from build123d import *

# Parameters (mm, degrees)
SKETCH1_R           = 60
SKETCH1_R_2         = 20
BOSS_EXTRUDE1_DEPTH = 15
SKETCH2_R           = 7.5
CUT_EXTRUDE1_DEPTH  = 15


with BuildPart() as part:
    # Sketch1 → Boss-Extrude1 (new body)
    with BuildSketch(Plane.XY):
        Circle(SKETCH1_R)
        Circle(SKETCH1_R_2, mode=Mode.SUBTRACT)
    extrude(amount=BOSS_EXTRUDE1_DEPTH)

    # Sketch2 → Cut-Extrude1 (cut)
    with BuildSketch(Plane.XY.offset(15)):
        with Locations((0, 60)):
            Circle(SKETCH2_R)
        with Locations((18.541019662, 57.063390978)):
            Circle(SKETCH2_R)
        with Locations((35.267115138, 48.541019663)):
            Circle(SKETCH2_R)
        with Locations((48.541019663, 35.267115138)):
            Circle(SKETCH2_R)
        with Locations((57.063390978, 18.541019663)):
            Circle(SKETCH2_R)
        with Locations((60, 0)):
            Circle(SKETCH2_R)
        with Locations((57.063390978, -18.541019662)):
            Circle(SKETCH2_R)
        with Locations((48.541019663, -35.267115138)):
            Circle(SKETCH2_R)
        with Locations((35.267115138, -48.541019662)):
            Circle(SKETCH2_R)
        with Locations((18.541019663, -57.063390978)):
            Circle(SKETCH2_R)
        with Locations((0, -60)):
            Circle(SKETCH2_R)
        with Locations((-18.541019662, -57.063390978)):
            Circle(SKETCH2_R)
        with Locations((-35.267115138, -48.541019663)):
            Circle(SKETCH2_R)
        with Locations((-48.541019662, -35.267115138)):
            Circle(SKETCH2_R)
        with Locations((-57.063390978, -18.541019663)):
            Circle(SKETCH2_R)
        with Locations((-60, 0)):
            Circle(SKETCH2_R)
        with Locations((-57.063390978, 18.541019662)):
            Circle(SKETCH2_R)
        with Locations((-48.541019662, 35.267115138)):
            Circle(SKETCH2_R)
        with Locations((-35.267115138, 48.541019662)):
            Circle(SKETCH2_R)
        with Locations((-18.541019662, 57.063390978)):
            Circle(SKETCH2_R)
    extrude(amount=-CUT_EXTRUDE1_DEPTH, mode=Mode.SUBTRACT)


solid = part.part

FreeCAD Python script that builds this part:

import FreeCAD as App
import Part
import Sketcher
from FreeCAD import Vector

doc = App.newDocument("Part")
params = doc.addObject("Spreadsheet::Sheet", "Params")
for row, (alias, value) in enumerate([
    ("sketch1_diameter", "120 mm"),
    ("sketch1_diameter2", "40 mm"),
    ("pad1_length", "15 mm"),
    ("sketch2_diameter", "15 mm"),
    ("pocket1_length", "15 mm"),
], start=1):
    params.set(f"A{row}", alias)
    params.set(f"B{row}", "=" + value)
    params.setAlias(f"B{row}", alias)

body = doc.addObject("PartDesign::Body", "Body")

sketch1 = body.newObject("Sketcher::SketchObject", "Sketch")
sketch1.AttachmentSupport = (doc.getObject("XY_Plane"), [""])
sketch1.MapMode = "FlatFace"
sketch1.addGeometry(Part.Circle(Vector(0, 0, 0), Vector(0, 0, 1), 60), False)
sketch1.addGeometry(Part.Circle(Vector(0, 0, 0), Vector(0, 0, 1), 20), False)
sketch1.addConstraint(Sketcher.Constraint("Coincident", 0, 3, -1, 1))
sketch1.addConstraint(Sketcher.Constraint("Coincident", 1, 3, -1, 1))
sketch1.addConstraint(Sketcher.Constraint("Diameter", 0, 120.0))
sketch1.addConstraint(Sketcher.Constraint("Diameter", 1, 40.0))
sketch1.setExpression("Constraints[2]", "Params.sketch1_diameter")
sketch1.setExpression("Constraints[3]", "Params.sketch1_diameter2")
pad1 = body.newObject("PartDesign::Pad", "Pad")
pad1.Profile = sketch1
pad1.setExpression("Length", "Params.pad1_length")

sketch2 = body.newObject("Sketcher::SketchObject", "Sketch001")
sketch2.AttachmentSupport = (doc.getObject("XY_Plane"), [""])
sketch2.MapMode = "FlatFace"
sketch2.AttachmentOffset = App.Placement(Vector(0, 0, 15), App.Rotation())
sketch2.addGeometry(Part.Circle(Vector(0, 60, 0), Vector(0, 0, 1), 8), False)
sketch2.addGeometry(Part.Circle(Vector(19, 57, 0), Vector(0, 0, 1), 8), False)
sketch2.addGeometry(Part.Circle(Vector(35, 49, 0), Vector(0, 0, 1), 8), False)
sketch2.addGeometry(Part.Circle(Vector(49, 35, 0), Vector(0, 0, 1), 8), False)
sketch2.addGeometry(Part.Circle(Vector(57, 19, 0), Vector(0, 0, 1), 8), False)
sketch2.addGeometry(Part.Circle(Vector(60, 0, 0), Vector(0, 0, 1), 8), False)
sketch2.addGeometry(Part.Circle(Vector(57, -19, 0), Vector(0, 0, 1), 8), False)
sketch2.addGeometry(Part.Circle(Vector(49, -35, 0), Vector(0, 0, 1), 8), False)
sketch2.addGeometry(Part.Circle(Vector(35, -49, 0), Vector(0, 0, 1), 8), False)
sketch2.addGeometry(Part.Circle(Vector(19, -57, 0), Vector(0, 0, 1), 8), False)
sketch2.addGeometry(Part.Circle(Vector(0, -60, 0), Vector(0, 0, 1), 8), False)
sketch2.addGeometry(Part.Circle(Vector(-19, -57, 0), Vector(0, 0, 1), 8), False)
sketch2.addGeometry(Part.Circle(Vector(-35, -49, 0), Vector(0, 0, 1), 8), False)
sketch2.addGeometry(Part.Circle(Vector(-49, -35, 0), Vector(0, 0, 1), 8), False)
sketch2.addGeometry(Part.Circle(Vector(-57, -19, 0), Vector(0, 0, 1), 8), False)
sketch2.addGeometry(Part.Circle(Vector(-60, 0, 0), Vector(0, 0, 1), 8), False)
sketch2.addGeometry(Part.Circle(Vector(-57, 19, 0), Vector(0, 0, 1), 8), False)
sketch2.addGeometry(Part.Circle(Vector(-49, 35, 0), Vector(0, 0, 1), 8), False)
sketch2.addGeometry(Part.Circle(Vector(-35, 49, 0), Vector(0, 0, 1), 8), False)
sketch2.addGeometry(Part.Circle(Vector(-19, 57, 0), Vector(0, 0, 1), 8), False)
sketch2.addConstraint(Sketcher.Constraint("Equal", 0, 1))
sketch2.addConstraint(Sketcher.Constraint("Equal", 1, 2))
sketch2.addConstraint(Sketcher.Constraint("Equal", 2, 3))
sketch2.addConstraint(Sketcher.Constraint("Equal", 3, 4))
sketch2.addConstraint(Sketcher.Constraint("Equal", 4, 5))
sketch2.addConstraint(Sketcher.Constraint("Equal", 5, 6))
sketch2.addConstraint(Sketcher.Constraint("Equal", 6, 7))
sketch2.addConstraint(Sketcher.Constraint("Equal", 7, 8))
sketch2.addConstraint(Sketcher.Constraint("Equal", 8, 9))
sketch2.addConstraint(Sketcher.Constraint("Equal", 9, 10))
sketch2.addConstraint(Sketcher.Constraint("Equal", 10, 11))
sketch2.addConstraint(Sketcher.Constraint("Equal", 11, 12))
sketch2.addConstraint(Sketcher.Constraint("Equal", 12, 13))
sketch2.addConstraint(Sketcher.Constraint("Equal", 13, 14))
sketch2.addConstraint(Sketcher.Constraint("Equal", 14, 15))
sketch2.addConstraint(Sketcher.Constraint("Equal", 15, 16))
sketch2.addConstraint(Sketcher.Constraint("Equal", 16, 17))
sketch2.addConstraint(Sketcher.Constraint("Equal", 17, 18))
sketch2.addConstraint(Sketcher.Constraint("Equal", 18, 19))
sketch2.addConstraint(Sketcher.Constraint("Symmetric", 0, 3, 10, 3, -1, 1))
sketch2.addConstraint(Sketcher.Constraint("Symmetric", 1, 3, 11, 3, -1, 1))
sketch2.addConstraint(Sketcher.Constraint("Symmetric", 2, 3, 12, 3, -1, 1))
sketch2.addConstraint(Sketcher.Constraint("Symmetric", 3, 3, 13, 3, -1, 1))
sketch2.addConstraint(Sketcher.Constraint("Symmetric", 4, 3, 14, 3, -1, 1))
sketch2.addConstraint(Sketcher.Constraint("Symmetric", 5, 3, 15, 3, -1, 1))
sketch2.addConstraint(Sketcher.Constraint("Symmetric", 6, 3, 16, 3, -1, 1))
sketch2.addConstraint(Sketcher.Constraint("Symmetric", 7, 3, 17, 3, -1, 1))
sketch2.addConstraint(Sketcher.Constraint("Symmetric", 8, 3, 18, 3, -1, 1))
sketch2.addConstraint(Sketcher.Constraint("Symmetric", 9, 3, 19, 3, -1, 1))
sketch2.addConstraint(Sketcher.Constraint("Symmetric", 9, 3, 11, 3, -2))
sketch2.addConstraint(Sketcher.Constraint("Symmetric", 8, 3, 12, 3, -2))
sketch2.addConstraint(Sketcher.Constraint("Symmetric", 7, 3, 13, 3, -2))
sketch2.addConstraint(Sketcher.Constraint("Symmetric", 6, 3, 14, 3, -2))
sketch2.addConstraint(Sketcher.Constraint("PointOnObject", 0, 3, -2))
sketch2.addConstraint(Sketcher.Constraint("PointOnObject", 5, 3, -1))
sketch2.addConstraint(Sketcher.Constraint("Diameter", 0, 15.0))
sketch2.addConstraint(Sketcher.Constraint("DistanceY", -1, 1, 0, 3, 60.0))
sketch2.addConstraint(Sketcher.Constraint("DistanceX", -1, 1, 5, 3, 60.0))
sketch2.addConstraint(Sketcher.Constraint("DistanceX", 1, 3, 3, 3, 30.0))
sketch2.addConstraint(Sketcher.Constraint("DistanceY", 4, 3, 2, 3, 30.0))
sketch2.addConstraint(Sketcher.Constraint("DistanceX", -1, 1, 1, 3, 18.54102))
sketch2.addConstraint(Sketcher.Constraint("DistanceY", -1, 1, 1, 3, 57.063391))
sketch2.addConstraint(Sketcher.Constraint("DistanceY", -1, 1, 2, 3, 48.54102))
sketch2.addConstraint(Sketcher.Constraint("DistanceX", -1, 1, 4, 3, 57.063391))
sketch2.addConstraint(Sketcher.Constraint("DistanceY", 7, 3, 3, 3, 70.53423))
sketch2.addConstraint(Sketcher.Constraint("DistanceX", 12, 3, 8, 3, 70.53423))
sketch2.setExpression("Constraints[35]", "Params.sketch2_diameter")
pocket1 = body.newObject("PartDesign::Pocket", "Pocket")
pocket1.Profile = sketch2
pocket1.setExpression("Length", "Params.pocket1_length")

doc.recompute()
